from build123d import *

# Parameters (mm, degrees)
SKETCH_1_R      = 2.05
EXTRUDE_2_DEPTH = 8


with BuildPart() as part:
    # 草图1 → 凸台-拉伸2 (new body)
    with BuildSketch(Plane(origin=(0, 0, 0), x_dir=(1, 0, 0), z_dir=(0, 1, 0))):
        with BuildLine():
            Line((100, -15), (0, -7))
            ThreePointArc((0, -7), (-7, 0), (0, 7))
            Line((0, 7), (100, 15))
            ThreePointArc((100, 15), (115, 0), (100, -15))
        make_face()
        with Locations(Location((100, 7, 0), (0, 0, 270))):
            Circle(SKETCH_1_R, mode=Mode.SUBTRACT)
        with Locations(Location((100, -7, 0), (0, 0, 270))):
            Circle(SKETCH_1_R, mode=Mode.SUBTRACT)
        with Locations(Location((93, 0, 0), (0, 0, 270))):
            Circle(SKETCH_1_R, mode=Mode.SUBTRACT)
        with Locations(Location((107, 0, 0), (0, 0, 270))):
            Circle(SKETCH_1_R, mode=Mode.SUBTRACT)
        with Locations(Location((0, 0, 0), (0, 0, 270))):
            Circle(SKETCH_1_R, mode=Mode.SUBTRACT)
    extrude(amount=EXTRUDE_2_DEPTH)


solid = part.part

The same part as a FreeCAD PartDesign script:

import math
import FreeCAD as App
import Part
import Sketcher
Q = App.Units.Quantity

doc = App.newDocument("Part")
body = doc.addObject("PartDesign::Body", "Body")

# Sketch on XZ plane
sketch1 = doc.addObject("Sketcher::SketchObject", "Sketch")
body.addObject(sketch1)
sketch1.AttachmentSupport = (doc.XZ_Plane, [""])
sketch1.MapMode = "FlatFace"
sketch1.addGeometry([
    Part.LineSegment(App.Vector(0, 7, 0), App.Vector(100, 15, 0)),  # 0
    Part.ArcOfCircle(Part.Circle(App.Vector(100, 0, 0), App.Vector(0, 0, 1), 15), math.radians(-90), math.radians(90)),  # 1
    Part.LineSegment(App.Vector(100, -15, 0), App.Vector(0, -7, 0)),  # 2
    Part.ArcOfCircle(Part.Circle(App.Vector(0, 0, 0), App.Vector(0, 0, 1), 7), math.radians(90), math.radians(270)),  # 3
    Part.Circle(App.Vector(100, 7, 0), App.Vector(0, 0, 1), 2),  # 4
    Part.Circle(App.Vector(107, 0, 0), App.Vector(0, 0, 1), 2),  # 5
    Part.Circle(App.Vector(93, 0, 0), App.Vector(0, 0, 1), 2),  # 6
    Part.Circle(App.Vector(100, -7, 0), App.Vector(0, 0, 1), 2),  # 7
    Part.Circle(App.Vector(0, 0, 0), App.Vector(0, 0, 1), 2),  # 8
], False)
sketch1.addConstraint([
    Sketcher.Constraint("Coincident", 0, 2, 1, 2),
    Sketcher.Constraint("Coincident", 1, 1, 2, 1),
    Sketcher.Constraint("Coincident", 2, 2, 3, 2),
    Sketcher.Constraint("Coincident", 3, 1, 0, 1),
    Sketcher.Constraint("Coincident", 3, 3, -1, 1),
    Sketcher.Constraint("Coincident", 8, 3, -1, 1),
    Sketcher.Constraint("Equal", 4, 5),
    Sketcher.Constraint("Equal", 5, 6),
    Sketcher.Constraint("Equal", 6, 7),
    Sketcher.Constraint("Equal", 7, 8),
    Sketcher.Constraint("Symmetric", 4, 3, 7, 3, -1),
    Sketcher.Constraint("Symmetric", 0, 2, 1, 1, -1),
    Sketcher.Constraint("PointOnObject", 5, 3, -1),
    Sketcher.Constraint("PointOnObject", 6, 3, -1),
    Sketcher.Constraint("PointOnObject", 2, 2, -2),
    Sketcher.Constraint("PointOnObject", 3, 1, -2),
    Sketcher.Constraint("Horizontal", 7, 3, 2, 2),
    Sketcher.Constraint("Vertical", 1, 3, 4, 3),
    Sketcher.Constraint("Vertical", 7, 3, 0, 2),
    Sketcher.Constraint("Radius", 1, Q("15 mm")),
    Sketcher.Constraint("Radius", 3, Q("7 mm")),
    Sketcher.Constraint("Diameter", 4, Q("4.1 mm")),
    Sketcher.Constraint("DistanceX", -1, 1, 1, 3, Q("100 mm")),
    Sketcher.Constraint("DistanceX", -1, 1, 5, 3, Q("107 mm")),
    Sketcher.Constraint("DistanceX", -1, 1, 6, 3, Q("93 mm")),
])
pad1 = doc.addObject("PartDesign::Pad", "Pad")
body.addObject(pad1)
pad1.Profile = sketch1
pad1.Length = 8
pad1.Reversed = True

doc.recompute()
